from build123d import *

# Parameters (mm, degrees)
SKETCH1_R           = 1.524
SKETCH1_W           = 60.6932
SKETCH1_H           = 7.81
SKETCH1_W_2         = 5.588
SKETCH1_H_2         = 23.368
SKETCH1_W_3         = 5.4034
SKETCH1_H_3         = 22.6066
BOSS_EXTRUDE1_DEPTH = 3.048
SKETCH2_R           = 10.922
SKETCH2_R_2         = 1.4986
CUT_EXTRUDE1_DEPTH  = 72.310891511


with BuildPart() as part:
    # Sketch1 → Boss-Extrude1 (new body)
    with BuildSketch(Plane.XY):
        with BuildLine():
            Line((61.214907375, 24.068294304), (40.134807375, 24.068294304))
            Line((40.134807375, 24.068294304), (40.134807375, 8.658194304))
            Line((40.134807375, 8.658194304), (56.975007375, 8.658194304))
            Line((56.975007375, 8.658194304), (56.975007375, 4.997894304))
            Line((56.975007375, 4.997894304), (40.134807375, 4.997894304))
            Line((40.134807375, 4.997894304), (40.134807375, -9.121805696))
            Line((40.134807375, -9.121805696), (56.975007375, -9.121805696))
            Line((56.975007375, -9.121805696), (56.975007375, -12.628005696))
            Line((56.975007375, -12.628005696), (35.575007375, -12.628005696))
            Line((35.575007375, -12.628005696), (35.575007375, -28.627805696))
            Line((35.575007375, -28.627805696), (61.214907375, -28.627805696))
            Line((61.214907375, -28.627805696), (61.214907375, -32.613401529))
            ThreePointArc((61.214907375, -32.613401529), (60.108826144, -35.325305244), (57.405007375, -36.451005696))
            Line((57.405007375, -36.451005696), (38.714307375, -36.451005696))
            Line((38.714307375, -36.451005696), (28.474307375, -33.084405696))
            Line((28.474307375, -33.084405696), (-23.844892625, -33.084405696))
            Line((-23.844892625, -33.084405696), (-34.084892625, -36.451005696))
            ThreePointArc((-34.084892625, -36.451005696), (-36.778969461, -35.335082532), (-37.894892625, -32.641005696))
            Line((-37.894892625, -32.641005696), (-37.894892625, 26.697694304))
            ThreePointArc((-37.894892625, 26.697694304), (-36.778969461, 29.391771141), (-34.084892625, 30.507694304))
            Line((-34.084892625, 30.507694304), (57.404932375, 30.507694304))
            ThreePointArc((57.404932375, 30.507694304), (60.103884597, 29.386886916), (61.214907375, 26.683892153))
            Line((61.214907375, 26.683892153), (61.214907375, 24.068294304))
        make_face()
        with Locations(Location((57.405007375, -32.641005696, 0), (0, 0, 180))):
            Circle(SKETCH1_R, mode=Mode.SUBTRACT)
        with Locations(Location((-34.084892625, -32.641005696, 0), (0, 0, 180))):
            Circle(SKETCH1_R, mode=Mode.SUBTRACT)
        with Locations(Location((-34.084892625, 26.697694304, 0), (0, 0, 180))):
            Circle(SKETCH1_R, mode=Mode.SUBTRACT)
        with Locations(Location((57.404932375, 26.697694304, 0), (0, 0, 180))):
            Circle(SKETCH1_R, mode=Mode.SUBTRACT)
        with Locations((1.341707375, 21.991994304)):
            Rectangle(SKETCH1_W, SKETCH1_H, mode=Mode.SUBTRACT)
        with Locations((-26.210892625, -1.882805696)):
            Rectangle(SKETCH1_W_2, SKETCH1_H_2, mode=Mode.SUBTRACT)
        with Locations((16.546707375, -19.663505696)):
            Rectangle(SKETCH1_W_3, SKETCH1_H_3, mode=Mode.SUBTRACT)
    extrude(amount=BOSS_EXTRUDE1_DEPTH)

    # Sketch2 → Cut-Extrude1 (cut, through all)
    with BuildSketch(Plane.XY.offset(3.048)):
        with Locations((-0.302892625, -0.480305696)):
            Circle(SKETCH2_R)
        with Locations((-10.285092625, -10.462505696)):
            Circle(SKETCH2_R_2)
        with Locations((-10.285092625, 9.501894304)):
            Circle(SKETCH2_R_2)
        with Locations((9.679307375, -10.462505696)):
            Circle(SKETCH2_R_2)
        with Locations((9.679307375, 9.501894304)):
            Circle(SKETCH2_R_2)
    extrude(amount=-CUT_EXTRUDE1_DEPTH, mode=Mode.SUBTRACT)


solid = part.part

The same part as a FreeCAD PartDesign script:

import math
import FreeCAD as App
import Part
import Sketcher
from FreeCAD import Vector
Q = App.Units.Quantity


def add_polygon(sketch, points):
    """Adds a closed chain of lines whose ends are joined by coincident constraints."""
    first, n = sketch.GeometryCount, len(points)
    for a, b in zip(points, points[1:] + points[:1]):
        sketch.addGeometry(Part.LineSegment(App.Vector(*a, 0), App.Vector(*b, 0)), False)
    for i in range(n):
        sketch.addConstraint(Sketcher.Constraint("Coincident", first + i, 2, first + (i + 1) % n, 1))

doc = App.newDocument("Part")
body = doc.addObject("PartDesign::Body", "Body")

# Sketch on XY plane
sketch1 = body.newObject("Sketcher::SketchObject", "Sketch")
sketch1.AttachmentSupport = (doc.getObject("XY_Plane"), [""])
sketch1.MapMode = "FlatFace"
sketch1.addGeometry(Part.LineSegment(Vector(40.134807, 24.068294, 0), Vector(61.214907, 24.068294, 0)), False)  # 0
sketch1.addGeometry(Part.LineSegment(Vector(61.214907, 24.068294, 0), Vector(61.214907, 26.683892, 0)), False)  # 1
sketch1.addGeometry(Part.ArcOfCircle(Part.Circle(Vector(57.404932, 26.697694, 0), Vector(0, 0, 1), 3.81), math.radians(-0.207561), math.radians(90)), False)  # 2
sketch1.addGeometry(Part.LineSegment(Vector(57.404932, 30.507694, 0), Vector(-34.084893, 30.507694, 0)), False)  # 3
sketch1.addGeometry(Part.ArcOfCircle(Part.Circle(Vector(-34.084893, 26.697694, 0), Vector(0, 0, 1), 3.81), math.radians(90), math.radians(180)), False)  # 4
sketch1.addGeometry(Part.LineSegment(Vector(-37.894893, 26.697694, 0), Vector(-37.894893, -32.641006, 0)), False)  # 5
sketch1.addGeometry(Part.ArcOfCircle(Part.Circle(Vector(-34.084893, -32.641006, 0), Vector(0, 0, 1), 3.81), math.radians(-180), math.radians(-90)), False)  # 6
sketch1.addGeometry(Part.LineSegment(Vector(-34.084893, -36.451006, 0), Vector(-23.844893, -33.084406, 0)), False)  # 7
sketch1.addGeometry(Part.LineSegment(Vector(-23.844893, -33.084406, 0), Vector(28.474307, -33.084406, 0)), False)  # 8
sketch1.addGeometry(Part.LineSegment(Vector(28.474307, -33.084406, 0), Vector(38.714307, -36.451006, 0)), False)  # 9
sketch1.addGeometry(Part.LineSegment(Vector(38.714307, -36.451006, 0), Vector(57.405007, -36.451006, 0)), False)  # 10
sketch1.addGeometry(Part.ArcOfCircle(Part.Circle(Vector(57.405007, -32.641006, 0), Vector(0, 0, 1), 3.81), math.radians(-90), math.radians(0.415122)), False)  # 11
sketch1.addGeometry(Part.LineSegment(Vector(61.214907, -32.613402, 0), Vector(61.214907, -28.627806, 0)), False)  # 12
sketch1.addGeometry(Part.LineSegment(Vector(61.214907, -28.627806, 0), Vector(35.575007, -28.627806, 0)), False)  # 13
sketch1.addGeometry(Part.LineSegment(Vector(35.575007, -28.627806, 0), Vector(35.575007, -12.628006, 0)), False)  # 14
sketch1.addGeometry(Part.LineSegment(Vector(35.575007, -12.628006, 0), Vector(56.975007, -12.628006, 0)), False)  # 15
sketch1.addGeometry(Part.LineSegment(Vector(56.975007, -12.628006, 0), Vector(56.975007, -9.121806, 0)), False)  # 16
sketch1.addGeometry(Part.LineSegment(Vector(56.975007, -9.121806, 0), Vector(40.134807, -9.121806, 0)), False)  # 17
sketch1.addGeometry(Part.LineSegment(Vector(40.134807, -9.121806, 0), Vector(40.134807, 4.997894, 0)), False)  # 18
sketch1.addGeometry(Part.LineSegment(Vector(40.134807, 4.997894, 0), Vector(56.975007, 4.997894, 0)), False)  # 19
sketch1.addGeometry(Part.LineSegment(Vector(56.975007, 4.997894, 0), Vector(56.975007, 8.658194, 0)), False)  # 20
sketch1.addGeometry(Part.LineSegment(Vector(56.975007, 8.658194, 0), Vector(40.134807, 8.658194, 0)), False)  # 21
sketch1.addGeometry(Part.LineSegment(Vector(40.134807, 8.658194, 0), Vector(40.134807, 24.068294, 0)), False)  # 22
sketch1.addGeometry(Part.Circle(Vector(57.405007, -32.641006, 0), Vector(0, 0, 1), 1.524), False)  # 23
add_polygon(sketch1, [(13.845007, -30.966806), (13.845007, -8.360206), (19.248407, -8.360206), (19.248407, -30.966806)])  # lines 24-27
sketch1.addGeometry(Part.Circle(Vector(-34.084893, -32.641006, 0), Vector(0, 0, 1), 1.524), False)  # 28
sketch1.addGeometry(Part.Circle(Vector(57.404932, 26.697694, 0), Vector(0, 0, 1), 1.524), False)  # 29
add_polygon(sketch1, [(-29.004893, -13.566806), (-29.004893, 9.801194), (-23.416893, 9.801194), (-23.416893, -13.566806)])  # lines 30-33
add_polygon(sketch1, [(-29.004893, 18.086994), (-29.004893, 25.896994), (31.688307, 25.896994), (31.688307, 18.086994)])  # lines 34-37
sketch1.addGeometry(Part.Circle(Vector(-34.084893, 26.697694, 0), Vector(0, 0, 1), 1.524), False)  # 38
sketch1.addConstraint([
    Sketcher.Constraint("Coincident", 0, 2, 1, 1),
    Sketcher.Constraint("Coincident", 1, 2, 2, 1),
    Sketcher.Constraint("Tangent", 2, 2, 3, 1),
    Sketcher.Constraint("Tangent", 3, 2, 4, 1),
    Sketcher.Constraint("Tangent", 4, 2, 5, 1),
    Sketcher.Constraint("Tangent", 5, 2, 6, 1),
    Sketcher.Constraint("Coincident", 6, 2, 7, 1),
    Sketcher.Constraint("Coincident", 7, 2, 8, 1),
    Sketcher.Constraint("Coincident", 8, 2, 9, 1),
    Sketcher.Constraint("Coincident", 9, 2, 10, 1),
    Sketcher.Constraint("Tangent", 10, 2, 11, 1),
    Sketcher.Constraint("Coincident", 11, 2, 12, 1),
    Sketcher.Constraint("Coincident", 12, 2, 13, 1),
    Sketcher.Constraint("Coincident", 13, 2, 14, 1),
    Sketcher.Constraint("Coincident", 14, 2, 15, 1),
    Sketcher.Constraint("Coincident", 15, 2, 16, 1),
    Sketcher.Constraint("Coincident", 16, 2, 17, 1),
    Sketcher.Constraint("Coincident", 17, 2, 18, 1),
    Sketcher.Constraint("Coincident", 18, 2, 19, 1),
    Sketcher.Constraint("Coincident", 19, 2, 20, 1),
    Sketcher.Constraint("Coincident", 20, 2, 21, 1),
    Sketcher.Constraint("Coincident", 21, 2, 22, 1),
    Sketcher.Constraint("Coincident", 22, 2, 0, 1),
    Sketcher.Constraint("Horizontal", 0),
    Sketcher.Constraint("Vertical", 1),
    Sketcher.Constraint("Horizontal", 3),
    Sketcher.Constraint("Vertical", 5),
    Sketcher.Constraint("Horizontal", 8),
    Sketcher.Constraint("Horizontal", 10),
    Sketcher.Constraint("Vertical", 12),
    Sketcher.Constraint("Horizontal", 13),
    Sketcher.Constraint("Vertical", 14),
    Sketcher.Constraint("Horizontal", 15),
    Sketcher.Constraint("Vertical", 16),
    Sketcher.Constraint("Horizontal", 17),
    Sketcher.Constraint("Vertical", 18),
    Sketcher.Constraint("Horizontal", 19),
    Sketcher.Constraint("Vertical", 20),
    Sketcher.Constraint("Horizontal", 21),
    Sketcher.Constraint("Vertical", 22),
    Sketcher.Constraint("Vertical", 24),
    Sketcher.Constraint("Horizontal", 25),
    Sketcher.Constraint("Vertical", 26),
    Sketcher.Constraint("Horizontal", 27),
    Sketcher.Constraint("Vertical", 30),
    Sketcher.Constraint("Horizontal", 31),
    Sketcher.Constraint("Vertical", 32),
    Sketcher.Constraint("Horizontal", 33),
    Sketcher.Constraint("Vertical", 34),
    Sketcher.Constraint("Horizontal", 35),
    Sketcher.Constraint("Vertical", 36),
    Sketcher.Constraint("Horizontal", 37),
    Sketcher.Constraint("Coincident", 23, 3, 11, 3),
    Sketcher.Constraint("Coincident", 28, 3, 6, 3),
    Sketcher.Constraint("Coincident", 29, 3, 2, 3),
    Sketcher.Constraint("Coincident", 38, 3, 4, 3),
    Sketcher.Constraint("Equal", 2, 4),
    Sketcher.Constraint("Equal", 4, 6),
    Sketcher.Constraint("Equal", 6, 11),
    Sketcher.Constraint("Equal", 23, 28),
    Sketcher.Constraint("Equal", 28, 29),
    Sketcher.Constraint("Equal", 29, 38),
    Sketcher.Constraint("Horizontal", 6, 3, 11, 3),
    Sketcher.Constraint("Vertical", 3, 2, 6, 2),
    Sketcher.Constraint("Vertical", 1, 2, 11, 2),
    Sketcher.Constraint("Vertical", 16, 2, 19, 2),
    Sketcher.Constraint("Vertical", 18, 2, 21, 2),
    Sketcher.Constraint("Vertical", 33, 2, 34, 2),
    Sketcher.Constraint("Equal", 7, 9),
    Sketcher.Constraint("Diameter", 23, Q("0.12 in")),
    Sketcher.Constraint("Radius", 2, Q("0.15 in")),
    Sketcher.Constraint("DistanceX", 31, 1, 31, 2, Q("0.22 in")),
    Sketcher.Constraint("DistanceY", 30, 1, 30, 2, Q("0.92 in")),
    Sketcher.Constraint("DistanceY", 16, 2, 20, 2, Q("0.7 in")),
    Sketcher.Constraint("DistanceX", 38, 3, 30, 2, Q("0.2 in")),
    Sketcher.Constraint("DistanceX", 17, 2, 17, 1, Q("0.663 in")),
    Sketcher.Constraint("DistanceX", 8, 2, 11, 2, Q("1.289 in")),
    Sketcher.Constraint("DistanceY", 11, 3, 12, 2, Q("0.158 in")),
    Sketcher.Constraint("DistanceX", 0, 1, 0, 2, Q("21.0801 mm")),
    Sketcher.Constraint("DistanceX", 8, 1, 8, 2, Q("52.3192 mm")),
    Sketcher.Constraint("DistanceX", 10, 1, 10, 2, Q("18.6907 mm")),
    Sketcher.Constraint("DistanceX", 13, 2, 13, 1, Q("25.6399 mm")),
    Sketcher.Constraint("DistanceX", 25, 1, 25, 2, Q("5.4034 mm")),
    Sketcher.Constraint("DistanceX", 35, 1, 35, 2, Q("60.6932 mm")),
    Sketcher.Constraint("DistanceY", 5, 2, 5, 1, Q("59.3387 mm")),
    Sketcher.Constraint("DistanceY", 14, 1, 14, 2, Q("15.9998 mm")),
    Sketcher.Constraint("DistanceY", 16, 1, 16, 2, Q("3.5062 mm")),
    Sketcher.Constraint("DistanceY", 18, 1, 18, 2, Q("14.1197 mm")),
    Sketcher.Constraint("DistanceY", 22, 1, 22, 2, Q("15.4101 mm")),
    Sketcher.Constraint("DistanceY", 24, 1, 24, 2, Q("22.6066 mm")),
    Sketcher.Constraint("DistanceY", 34, 1, 34, 2, Q("7.81 mm")),
    Sketcher.Constraint("DistanceY", 11, 2, -1, 1, Q("32.613402 mm")),
    Sketcher.Constraint("DistanceY", 7, 2, 6, 3, Q("0.4434 mm")),
    Sketcher.Constraint("DistanceX", 24, 2, 14, 2, Q("21.73 mm")),
    Sketcher.Constraint("DistanceY", 14, 2, 24, 2, Q("4.2678 mm")),
    Sketcher.Constraint("DistanceY", 30, 2, 38, 3, Q("16.8965 mm")),
    Sketcher.Constraint("DistanceY", 34, 2, 38, 3, Q("0.8007 mm")),
    Sketcher.Constraint("DistanceX", 3, 2, 3, 1, Q("91.489825 mm")),
    Sketcher.Constraint("DistanceY", 1, 1, 1, 2, Q("2.615598 mm")),
    Sketcher.Constraint("DistanceX", -1, 1, 2, 3, Q("57.404932 mm")),
])
pad1 = body.newObject("PartDesign::Pad", "Pad")
pad1.Profile = sketch1
pad1.Length = Q("0.12 in")

# Sketch on XY plane
sketch2 = body.newObject("Sketcher::SketchObject", "Sketch001")
sketch2.AttachmentSupport = (doc.getObject("XY_Plane"), [""])
sketch2.MapMode = "FlatFace"
sketch2.AttachmentOffset = App.Placement(Vector(0, 0, 0.12 * 25.4), App.Rotation())
sketch2.addGeometry([
    Part.Circle(Vector(-0.3, -0.5, 0), Vector(0, 0, 1), 10.9),  # 0
    Part.Circle(Vector(-10.3, -10.5, 0), Vector(0, 0, 1), 1.5),  # 1
    Part.Circle(Vector(-10.3, 9.5, 0), Vector(0, 0, 1), 1.5),  # 2
    Part.Circle(Vector(9.7, -10.5, 0), Vector(0, 0, 1), 1.5),  # 3
    Part.Circle(Vector(9.7, 9.5, 0), Vector(0, 0, 1), 1.5),  # 4
], False)
sketch2.addConstraint([
    Sketcher.Constraint("Equal", 1, 2),
    Sketcher.Constraint("Equal", 2, 3),
    Sketcher.Constraint("Equal", 3, 4),
    Sketcher.Constraint("Horizontal", 1, 3, 3, 3),
    Sketcher.Constraint("Horizontal", 2, 3, 4, 3),
    Sketcher.Constraint("Vertical", 1, 3, 2, 3),
    Sketcher.Constraint("Vertical", 3, 3, 4, 3),
    Sketcher.Constraint("Diameter", 0, Q("0.86 in")),
    Sketcher.Constraint("Diameter", 1, Q("0.118 in")),
    Sketcher.Constraint("DistanceX", 1, 3, 0, 3, Q("0.393 in")),
    Sketcher.Constraint("DistanceY", 1, 3, 0, 3, Q("0.393 in")),
    Sketcher.Constraint("DistanceY", 0, 3, 2, 3, Q("0.393 in")),
    Sketcher.Constraint("DistanceX", 0, 3, 3, 3, Q("0.393 in")),
    Sketcher.Constraint("DistanceX", 0, 3, -1, 1, Q("0.302893 mm")),
    Sketcher.Constraint("DistanceY", 0, 3, -1, 1, Q("0.480306 mm")),
])
pocket1 = body.newObject("PartDesign::Pocket", "Pocket")
pocket1.Profile = sketch2
pocket1.Type = "ThroughAll"

doc.recompute()
